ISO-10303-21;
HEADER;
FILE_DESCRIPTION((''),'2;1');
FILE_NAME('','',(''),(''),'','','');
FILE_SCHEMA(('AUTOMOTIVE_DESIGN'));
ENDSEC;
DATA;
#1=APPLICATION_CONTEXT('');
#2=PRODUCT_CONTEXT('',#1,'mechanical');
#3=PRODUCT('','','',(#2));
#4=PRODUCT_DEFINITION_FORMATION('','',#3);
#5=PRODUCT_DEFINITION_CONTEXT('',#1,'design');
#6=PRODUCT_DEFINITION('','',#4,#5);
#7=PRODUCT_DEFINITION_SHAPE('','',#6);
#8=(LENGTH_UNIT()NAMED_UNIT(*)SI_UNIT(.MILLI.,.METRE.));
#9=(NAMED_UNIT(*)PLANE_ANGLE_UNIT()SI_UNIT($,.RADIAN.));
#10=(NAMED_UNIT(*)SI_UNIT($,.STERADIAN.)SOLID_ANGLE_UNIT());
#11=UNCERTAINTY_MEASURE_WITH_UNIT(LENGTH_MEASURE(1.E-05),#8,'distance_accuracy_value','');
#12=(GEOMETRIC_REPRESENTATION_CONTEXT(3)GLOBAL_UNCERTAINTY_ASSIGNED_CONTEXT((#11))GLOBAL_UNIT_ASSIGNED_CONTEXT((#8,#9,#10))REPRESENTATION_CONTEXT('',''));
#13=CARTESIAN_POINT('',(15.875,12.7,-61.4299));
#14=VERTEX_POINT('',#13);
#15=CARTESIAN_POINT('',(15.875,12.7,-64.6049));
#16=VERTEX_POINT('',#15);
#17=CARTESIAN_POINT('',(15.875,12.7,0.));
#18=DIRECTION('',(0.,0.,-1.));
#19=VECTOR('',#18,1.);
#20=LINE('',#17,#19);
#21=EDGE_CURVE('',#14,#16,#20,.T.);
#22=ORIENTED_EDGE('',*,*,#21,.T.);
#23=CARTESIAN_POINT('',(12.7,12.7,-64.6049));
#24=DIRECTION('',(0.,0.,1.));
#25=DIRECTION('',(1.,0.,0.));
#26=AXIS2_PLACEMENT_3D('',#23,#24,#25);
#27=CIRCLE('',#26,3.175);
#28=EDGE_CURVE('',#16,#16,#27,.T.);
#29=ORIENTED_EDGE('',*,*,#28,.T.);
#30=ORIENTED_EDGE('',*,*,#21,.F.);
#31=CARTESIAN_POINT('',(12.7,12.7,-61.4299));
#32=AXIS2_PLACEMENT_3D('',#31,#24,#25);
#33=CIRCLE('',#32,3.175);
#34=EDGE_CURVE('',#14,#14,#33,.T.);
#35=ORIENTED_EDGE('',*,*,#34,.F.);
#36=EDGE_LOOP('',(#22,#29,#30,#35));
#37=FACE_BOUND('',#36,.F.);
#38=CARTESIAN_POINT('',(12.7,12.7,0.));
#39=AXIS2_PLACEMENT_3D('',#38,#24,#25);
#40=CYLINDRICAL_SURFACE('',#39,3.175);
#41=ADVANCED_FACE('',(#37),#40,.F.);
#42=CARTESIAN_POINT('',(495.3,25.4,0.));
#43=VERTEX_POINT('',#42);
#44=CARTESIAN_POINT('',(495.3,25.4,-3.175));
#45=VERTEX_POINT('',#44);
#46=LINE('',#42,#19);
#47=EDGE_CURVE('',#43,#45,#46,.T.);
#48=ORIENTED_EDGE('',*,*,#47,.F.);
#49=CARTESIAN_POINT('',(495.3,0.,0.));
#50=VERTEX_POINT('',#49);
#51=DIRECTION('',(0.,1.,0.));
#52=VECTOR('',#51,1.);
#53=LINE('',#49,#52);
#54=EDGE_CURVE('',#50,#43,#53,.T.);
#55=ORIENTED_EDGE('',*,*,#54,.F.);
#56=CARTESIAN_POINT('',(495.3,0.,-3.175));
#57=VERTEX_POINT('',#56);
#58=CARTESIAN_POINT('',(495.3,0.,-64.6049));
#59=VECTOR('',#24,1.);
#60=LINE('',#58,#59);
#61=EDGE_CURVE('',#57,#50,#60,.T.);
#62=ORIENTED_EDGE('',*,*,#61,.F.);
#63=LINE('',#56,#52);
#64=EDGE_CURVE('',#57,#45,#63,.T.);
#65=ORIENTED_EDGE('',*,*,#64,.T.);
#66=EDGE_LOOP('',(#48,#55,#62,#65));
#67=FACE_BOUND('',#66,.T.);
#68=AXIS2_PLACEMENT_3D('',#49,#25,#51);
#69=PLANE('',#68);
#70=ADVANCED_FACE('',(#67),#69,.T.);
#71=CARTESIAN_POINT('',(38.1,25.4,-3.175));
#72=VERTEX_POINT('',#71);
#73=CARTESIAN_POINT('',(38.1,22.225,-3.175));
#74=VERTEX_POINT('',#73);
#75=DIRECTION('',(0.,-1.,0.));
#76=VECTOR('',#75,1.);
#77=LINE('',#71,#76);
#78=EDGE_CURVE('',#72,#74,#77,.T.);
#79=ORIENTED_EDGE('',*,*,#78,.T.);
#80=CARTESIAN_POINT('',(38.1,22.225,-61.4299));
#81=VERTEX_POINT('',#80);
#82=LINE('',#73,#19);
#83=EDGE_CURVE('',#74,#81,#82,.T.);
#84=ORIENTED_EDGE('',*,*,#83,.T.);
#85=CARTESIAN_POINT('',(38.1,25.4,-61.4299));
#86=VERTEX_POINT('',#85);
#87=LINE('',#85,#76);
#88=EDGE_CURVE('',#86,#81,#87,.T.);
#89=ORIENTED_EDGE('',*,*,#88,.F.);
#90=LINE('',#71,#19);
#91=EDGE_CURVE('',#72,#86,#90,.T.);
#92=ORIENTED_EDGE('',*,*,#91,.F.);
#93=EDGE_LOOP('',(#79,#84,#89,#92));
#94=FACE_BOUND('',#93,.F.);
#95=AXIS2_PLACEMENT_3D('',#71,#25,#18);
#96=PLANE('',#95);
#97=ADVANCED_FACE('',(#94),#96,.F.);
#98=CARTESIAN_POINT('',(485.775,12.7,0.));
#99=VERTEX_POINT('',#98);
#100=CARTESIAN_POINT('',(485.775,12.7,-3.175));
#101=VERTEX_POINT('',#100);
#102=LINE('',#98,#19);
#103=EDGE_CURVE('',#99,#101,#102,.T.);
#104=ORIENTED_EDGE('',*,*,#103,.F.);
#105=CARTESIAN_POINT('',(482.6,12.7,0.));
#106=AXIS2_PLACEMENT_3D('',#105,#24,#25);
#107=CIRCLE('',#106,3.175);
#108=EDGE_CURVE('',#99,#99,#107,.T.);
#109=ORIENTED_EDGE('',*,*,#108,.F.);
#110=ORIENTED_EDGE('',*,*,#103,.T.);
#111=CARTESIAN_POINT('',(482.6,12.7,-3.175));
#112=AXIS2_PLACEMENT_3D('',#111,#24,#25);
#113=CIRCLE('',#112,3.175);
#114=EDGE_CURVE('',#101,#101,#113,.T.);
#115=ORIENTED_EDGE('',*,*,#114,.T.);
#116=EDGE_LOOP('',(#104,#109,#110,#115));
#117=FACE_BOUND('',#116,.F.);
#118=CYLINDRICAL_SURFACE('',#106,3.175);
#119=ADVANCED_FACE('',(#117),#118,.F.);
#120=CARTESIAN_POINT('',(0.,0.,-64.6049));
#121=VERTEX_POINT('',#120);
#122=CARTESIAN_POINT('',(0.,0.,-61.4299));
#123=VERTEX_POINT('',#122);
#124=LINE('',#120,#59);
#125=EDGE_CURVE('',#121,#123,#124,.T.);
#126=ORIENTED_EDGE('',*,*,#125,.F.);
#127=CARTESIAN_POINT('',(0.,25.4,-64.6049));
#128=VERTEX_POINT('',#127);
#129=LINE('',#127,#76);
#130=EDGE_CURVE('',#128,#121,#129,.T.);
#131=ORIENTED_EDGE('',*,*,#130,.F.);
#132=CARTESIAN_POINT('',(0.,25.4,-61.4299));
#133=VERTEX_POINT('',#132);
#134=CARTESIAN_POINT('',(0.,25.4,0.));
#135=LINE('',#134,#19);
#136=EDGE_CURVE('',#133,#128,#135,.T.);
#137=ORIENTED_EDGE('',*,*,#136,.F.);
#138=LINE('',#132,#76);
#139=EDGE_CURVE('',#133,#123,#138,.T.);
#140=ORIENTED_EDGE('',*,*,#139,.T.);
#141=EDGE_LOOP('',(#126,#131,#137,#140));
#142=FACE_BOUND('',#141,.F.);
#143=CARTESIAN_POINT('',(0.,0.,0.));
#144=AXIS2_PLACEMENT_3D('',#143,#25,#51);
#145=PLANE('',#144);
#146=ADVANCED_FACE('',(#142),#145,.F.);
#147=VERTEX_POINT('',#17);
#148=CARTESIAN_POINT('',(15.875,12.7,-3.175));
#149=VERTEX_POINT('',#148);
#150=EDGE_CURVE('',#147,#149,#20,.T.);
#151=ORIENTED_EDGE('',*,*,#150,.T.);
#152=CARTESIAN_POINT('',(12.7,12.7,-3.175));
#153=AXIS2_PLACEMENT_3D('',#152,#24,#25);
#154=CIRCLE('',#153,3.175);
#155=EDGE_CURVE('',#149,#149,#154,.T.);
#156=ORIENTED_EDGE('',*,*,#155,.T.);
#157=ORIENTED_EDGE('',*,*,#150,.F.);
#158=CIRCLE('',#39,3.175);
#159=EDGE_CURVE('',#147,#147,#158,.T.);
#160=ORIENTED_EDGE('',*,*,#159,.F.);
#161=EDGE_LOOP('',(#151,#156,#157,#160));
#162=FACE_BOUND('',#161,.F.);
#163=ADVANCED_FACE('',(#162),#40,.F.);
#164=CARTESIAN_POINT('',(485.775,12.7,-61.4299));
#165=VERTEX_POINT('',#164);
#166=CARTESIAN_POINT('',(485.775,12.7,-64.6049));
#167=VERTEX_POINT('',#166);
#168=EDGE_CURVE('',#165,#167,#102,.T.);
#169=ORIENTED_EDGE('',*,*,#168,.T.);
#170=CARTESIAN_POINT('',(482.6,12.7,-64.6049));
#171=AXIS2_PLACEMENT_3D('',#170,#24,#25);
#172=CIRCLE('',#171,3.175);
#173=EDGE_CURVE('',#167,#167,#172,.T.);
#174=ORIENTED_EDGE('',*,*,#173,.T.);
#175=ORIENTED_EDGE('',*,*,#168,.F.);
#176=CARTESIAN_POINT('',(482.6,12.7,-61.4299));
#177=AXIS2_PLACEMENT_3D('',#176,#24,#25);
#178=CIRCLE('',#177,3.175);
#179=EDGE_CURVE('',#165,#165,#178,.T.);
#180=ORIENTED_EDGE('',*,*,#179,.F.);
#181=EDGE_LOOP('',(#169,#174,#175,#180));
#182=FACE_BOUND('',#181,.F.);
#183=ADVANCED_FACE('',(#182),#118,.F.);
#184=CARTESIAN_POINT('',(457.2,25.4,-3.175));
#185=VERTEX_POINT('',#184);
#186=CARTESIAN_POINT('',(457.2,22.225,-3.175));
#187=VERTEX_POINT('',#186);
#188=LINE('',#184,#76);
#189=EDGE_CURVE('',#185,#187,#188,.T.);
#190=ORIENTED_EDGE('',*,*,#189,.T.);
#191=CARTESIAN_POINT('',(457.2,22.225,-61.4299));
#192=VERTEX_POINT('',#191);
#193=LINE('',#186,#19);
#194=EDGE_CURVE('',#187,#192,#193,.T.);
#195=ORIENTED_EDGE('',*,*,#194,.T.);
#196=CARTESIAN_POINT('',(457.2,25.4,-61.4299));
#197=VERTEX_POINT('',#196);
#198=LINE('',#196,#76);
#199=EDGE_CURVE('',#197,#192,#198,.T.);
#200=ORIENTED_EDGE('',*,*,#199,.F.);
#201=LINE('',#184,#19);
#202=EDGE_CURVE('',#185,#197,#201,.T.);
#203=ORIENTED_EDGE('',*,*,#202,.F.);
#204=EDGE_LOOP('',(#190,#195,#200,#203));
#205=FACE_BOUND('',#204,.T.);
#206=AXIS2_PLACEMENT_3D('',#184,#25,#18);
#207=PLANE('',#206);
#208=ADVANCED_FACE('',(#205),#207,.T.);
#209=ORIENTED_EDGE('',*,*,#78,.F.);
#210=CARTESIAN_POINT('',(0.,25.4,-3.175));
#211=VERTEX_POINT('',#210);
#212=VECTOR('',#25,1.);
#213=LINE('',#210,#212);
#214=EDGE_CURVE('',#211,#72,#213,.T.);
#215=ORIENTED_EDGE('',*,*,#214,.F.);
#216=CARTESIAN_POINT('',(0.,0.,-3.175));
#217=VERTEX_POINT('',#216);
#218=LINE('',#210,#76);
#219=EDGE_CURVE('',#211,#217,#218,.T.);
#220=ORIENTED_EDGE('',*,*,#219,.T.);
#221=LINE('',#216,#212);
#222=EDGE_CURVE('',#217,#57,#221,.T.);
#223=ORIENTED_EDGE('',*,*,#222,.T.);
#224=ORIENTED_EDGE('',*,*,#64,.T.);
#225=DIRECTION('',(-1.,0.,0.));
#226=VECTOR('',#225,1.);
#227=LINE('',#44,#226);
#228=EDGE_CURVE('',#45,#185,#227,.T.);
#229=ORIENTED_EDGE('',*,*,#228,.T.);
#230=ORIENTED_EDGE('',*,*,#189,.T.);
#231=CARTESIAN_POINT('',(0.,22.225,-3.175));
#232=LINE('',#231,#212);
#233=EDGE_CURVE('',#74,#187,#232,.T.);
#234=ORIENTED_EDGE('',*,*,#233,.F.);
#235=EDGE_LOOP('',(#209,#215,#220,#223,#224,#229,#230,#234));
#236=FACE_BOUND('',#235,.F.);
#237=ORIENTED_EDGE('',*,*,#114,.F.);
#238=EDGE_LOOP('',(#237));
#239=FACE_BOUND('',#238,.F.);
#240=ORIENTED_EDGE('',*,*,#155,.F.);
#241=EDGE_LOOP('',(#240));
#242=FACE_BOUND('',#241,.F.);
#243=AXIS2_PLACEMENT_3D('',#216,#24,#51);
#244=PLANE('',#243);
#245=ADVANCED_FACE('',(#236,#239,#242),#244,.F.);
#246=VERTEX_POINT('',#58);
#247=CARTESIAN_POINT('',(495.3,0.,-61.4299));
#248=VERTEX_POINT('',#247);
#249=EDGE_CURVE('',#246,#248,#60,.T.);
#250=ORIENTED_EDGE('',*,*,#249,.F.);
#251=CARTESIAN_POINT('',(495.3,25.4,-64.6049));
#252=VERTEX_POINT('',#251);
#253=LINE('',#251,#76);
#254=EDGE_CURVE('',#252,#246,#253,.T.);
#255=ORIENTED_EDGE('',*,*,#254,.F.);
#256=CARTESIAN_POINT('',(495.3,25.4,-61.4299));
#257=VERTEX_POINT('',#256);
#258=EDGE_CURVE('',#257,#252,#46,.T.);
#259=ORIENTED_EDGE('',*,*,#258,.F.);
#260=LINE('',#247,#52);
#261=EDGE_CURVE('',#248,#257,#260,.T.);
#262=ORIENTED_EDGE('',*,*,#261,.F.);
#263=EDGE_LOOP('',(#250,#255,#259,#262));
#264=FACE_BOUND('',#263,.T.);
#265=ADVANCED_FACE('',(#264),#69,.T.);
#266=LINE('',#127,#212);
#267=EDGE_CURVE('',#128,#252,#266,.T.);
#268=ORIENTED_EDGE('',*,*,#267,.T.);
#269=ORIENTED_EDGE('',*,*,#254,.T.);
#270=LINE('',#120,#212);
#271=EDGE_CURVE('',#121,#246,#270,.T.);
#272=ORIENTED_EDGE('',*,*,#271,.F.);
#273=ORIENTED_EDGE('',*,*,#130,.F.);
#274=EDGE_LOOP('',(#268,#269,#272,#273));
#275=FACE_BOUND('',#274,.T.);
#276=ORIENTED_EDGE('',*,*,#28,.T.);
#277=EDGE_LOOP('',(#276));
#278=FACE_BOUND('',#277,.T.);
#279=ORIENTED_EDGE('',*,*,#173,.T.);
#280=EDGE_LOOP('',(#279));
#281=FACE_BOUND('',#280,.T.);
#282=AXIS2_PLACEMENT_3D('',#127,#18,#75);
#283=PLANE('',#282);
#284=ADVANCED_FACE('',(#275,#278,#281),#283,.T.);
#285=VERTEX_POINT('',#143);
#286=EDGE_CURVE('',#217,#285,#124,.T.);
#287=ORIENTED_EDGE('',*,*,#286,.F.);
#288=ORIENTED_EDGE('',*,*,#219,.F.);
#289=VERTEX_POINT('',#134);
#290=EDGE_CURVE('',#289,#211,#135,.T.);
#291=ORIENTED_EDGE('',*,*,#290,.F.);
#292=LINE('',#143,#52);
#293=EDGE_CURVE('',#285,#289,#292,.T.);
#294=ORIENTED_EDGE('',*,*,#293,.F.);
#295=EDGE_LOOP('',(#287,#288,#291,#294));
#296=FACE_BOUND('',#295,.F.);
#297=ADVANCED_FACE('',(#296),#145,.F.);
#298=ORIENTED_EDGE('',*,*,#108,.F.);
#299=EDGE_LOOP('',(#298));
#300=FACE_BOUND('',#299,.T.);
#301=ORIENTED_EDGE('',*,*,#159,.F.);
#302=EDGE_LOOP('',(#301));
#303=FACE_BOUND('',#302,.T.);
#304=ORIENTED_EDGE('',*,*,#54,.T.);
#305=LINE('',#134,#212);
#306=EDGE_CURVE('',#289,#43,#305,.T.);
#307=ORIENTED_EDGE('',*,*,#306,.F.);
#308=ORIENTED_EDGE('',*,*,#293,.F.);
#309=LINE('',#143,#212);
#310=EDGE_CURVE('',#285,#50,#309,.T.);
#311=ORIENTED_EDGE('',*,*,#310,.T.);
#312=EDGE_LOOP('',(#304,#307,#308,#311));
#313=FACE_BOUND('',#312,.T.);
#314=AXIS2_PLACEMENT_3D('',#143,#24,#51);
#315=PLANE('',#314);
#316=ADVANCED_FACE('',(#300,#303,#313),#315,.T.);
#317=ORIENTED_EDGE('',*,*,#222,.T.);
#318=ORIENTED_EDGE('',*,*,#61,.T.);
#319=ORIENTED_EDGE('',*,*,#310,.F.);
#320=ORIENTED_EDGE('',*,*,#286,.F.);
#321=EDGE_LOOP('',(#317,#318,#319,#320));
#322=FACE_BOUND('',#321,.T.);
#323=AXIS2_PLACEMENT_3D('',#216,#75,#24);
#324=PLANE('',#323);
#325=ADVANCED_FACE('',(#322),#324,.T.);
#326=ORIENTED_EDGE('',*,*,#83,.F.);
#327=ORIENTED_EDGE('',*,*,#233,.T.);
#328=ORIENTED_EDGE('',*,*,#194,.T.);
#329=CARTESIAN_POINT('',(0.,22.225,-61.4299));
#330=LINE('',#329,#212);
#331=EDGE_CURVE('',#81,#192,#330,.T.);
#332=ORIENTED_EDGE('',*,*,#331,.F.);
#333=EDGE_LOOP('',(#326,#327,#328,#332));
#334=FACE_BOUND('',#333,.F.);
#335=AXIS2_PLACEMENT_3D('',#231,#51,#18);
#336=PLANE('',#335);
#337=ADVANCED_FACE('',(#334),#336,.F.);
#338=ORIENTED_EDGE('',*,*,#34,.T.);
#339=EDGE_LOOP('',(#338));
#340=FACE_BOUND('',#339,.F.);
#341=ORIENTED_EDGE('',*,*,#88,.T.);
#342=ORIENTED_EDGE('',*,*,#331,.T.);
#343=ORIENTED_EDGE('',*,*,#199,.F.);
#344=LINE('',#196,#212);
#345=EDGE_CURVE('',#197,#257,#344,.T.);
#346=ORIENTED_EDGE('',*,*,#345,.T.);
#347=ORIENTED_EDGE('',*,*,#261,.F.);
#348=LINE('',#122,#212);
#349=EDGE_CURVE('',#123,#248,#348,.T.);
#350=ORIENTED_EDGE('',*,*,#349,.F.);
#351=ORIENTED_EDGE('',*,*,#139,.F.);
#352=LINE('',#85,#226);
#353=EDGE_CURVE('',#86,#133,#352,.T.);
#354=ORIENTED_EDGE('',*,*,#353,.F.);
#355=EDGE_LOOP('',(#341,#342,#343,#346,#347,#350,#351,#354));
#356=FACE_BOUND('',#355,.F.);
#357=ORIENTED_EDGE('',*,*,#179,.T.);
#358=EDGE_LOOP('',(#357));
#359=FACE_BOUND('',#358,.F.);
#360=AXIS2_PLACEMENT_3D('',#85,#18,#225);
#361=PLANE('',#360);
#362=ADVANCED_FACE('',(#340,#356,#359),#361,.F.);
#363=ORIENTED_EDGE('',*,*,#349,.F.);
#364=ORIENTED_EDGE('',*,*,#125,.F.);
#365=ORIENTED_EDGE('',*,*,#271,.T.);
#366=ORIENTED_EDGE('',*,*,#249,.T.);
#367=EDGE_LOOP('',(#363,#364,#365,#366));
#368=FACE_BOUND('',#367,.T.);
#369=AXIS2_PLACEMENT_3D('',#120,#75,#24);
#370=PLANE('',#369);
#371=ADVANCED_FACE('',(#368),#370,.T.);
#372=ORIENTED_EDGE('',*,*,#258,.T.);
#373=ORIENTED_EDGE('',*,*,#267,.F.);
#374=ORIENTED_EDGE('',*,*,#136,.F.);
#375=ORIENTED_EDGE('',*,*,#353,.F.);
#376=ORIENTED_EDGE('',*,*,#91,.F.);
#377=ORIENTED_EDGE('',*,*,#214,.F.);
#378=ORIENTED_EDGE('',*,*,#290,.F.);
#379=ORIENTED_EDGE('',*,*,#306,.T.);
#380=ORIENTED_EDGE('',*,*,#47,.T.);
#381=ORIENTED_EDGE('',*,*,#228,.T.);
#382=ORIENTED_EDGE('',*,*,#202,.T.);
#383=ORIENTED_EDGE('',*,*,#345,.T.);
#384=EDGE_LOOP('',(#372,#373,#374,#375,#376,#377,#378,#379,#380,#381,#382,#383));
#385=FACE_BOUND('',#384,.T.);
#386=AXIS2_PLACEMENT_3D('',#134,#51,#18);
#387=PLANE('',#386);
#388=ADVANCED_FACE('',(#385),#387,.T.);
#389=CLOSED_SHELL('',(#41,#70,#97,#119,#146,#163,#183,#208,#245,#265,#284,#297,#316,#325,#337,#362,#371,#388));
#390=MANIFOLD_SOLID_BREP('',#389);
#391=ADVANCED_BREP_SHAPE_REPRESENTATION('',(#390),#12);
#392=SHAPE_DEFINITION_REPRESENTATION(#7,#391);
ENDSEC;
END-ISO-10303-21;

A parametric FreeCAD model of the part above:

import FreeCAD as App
import Part
import Sketcher

V = App.Vector
Q = App.Units.Quantity


def add_polygon(sketch, points):
    """Adds a closed chain of lines whose ends are joined by coincident constraints."""
    first, n = sketch.GeometryCount, len(points)
    for a, b in zip(points, points[1:] + points[:1]):
        sketch.addGeometry(Part.LineSegment(App.Vector(*a, 0), App.Vector(*b, 0)), False)
    for i in range(n):
        sketch.addConstraint(Sketcher.Constraint("Coincident", first + i, 2, first + (i + 1) % n, 1))

doc = App.newDocument("Part")
body = doc.addObject("PartDesign::Body", "Body")

sketch1 = body.newObject("Sketcher::SketchObject", "Sketch")
sketch1.AttachmentSupport = (doc.getObject("YZ_Plane"), [""])
sketch1.MapMode = "FlatFace"
add_polygon(sketch1, [(25.4, 0), (0, 0), (0, -3.175), (22.225, -3.175), (22.225, -61.4299), (0, -61.4299), (0, -64.6049), (25.4, -64.6049)])
sketch1.addConstraint([
    Sketcher.Constraint("Horizontal", 0),
    Sketcher.Constraint("Vertical", 1),
    Sketcher.Constraint("Horizontal", 2),
    Sketcher.Constraint("Vertical", 3),
    Sketcher.Constraint("Horizontal", 4),
    Sketcher.Constraint("Vertical", 5),
    Sketcher.Constraint("Horizontal", 6),
    Sketcher.Constraint("Vertical", 7),
    Sketcher.Constraint("Coincident", 0, 2, -1, 1),
    Sketcher.Constraint("PointOnObject", 4, 2, -2),
    Sketcher.Constraint("Equal", 1, 5),
    Sketcher.Constraint("DistanceX", 0, 2, 0, 1, Q("1 in")),
    Sketcher.Constraint("DistanceX", 2, 1, 2, 2, Q("0.875 in")),
    Sketcher.Constraint("DistanceY", 1, 2, 1, 1, Q("0.125 in")),
    Sketcher.Constraint("DistanceY", 3, 2, 3, 1, Q("2.2935 in")),
])
pad1 = body.newObject("PartDesign::Pad", "Pad")
pad1.Profile = sketch1
pad1.Length = Q("19.5 in")

sketch2 = body.newObject("Sketcher::SketchObject", "Sketch001")
sketch2.AttachmentSupport = (doc.getObject("XZ_Plane"), [""])
sketch2.MapMode = "FlatFace"
sketch2.AttachmentOffset = App.Placement(V(0, 0, -1 * 25.4), App.Rotation())
add_polygon(sketch2, [(38.1, -61.4299), (0, -61.4299), (0, -3.175), (38.1, -3.175)])
add_polygon(sketch2, [(495.3, -3.175), (495.3, -61.4299), (457.2, -61.4299), (457.2, -3.175)])
sketch2.addConstraint([
    Sketcher.Constraint("Horizontal", 0),
    Sketcher.Constraint("Vertical", 1),
    Sketcher.Constraint("Horizontal", 2),
    Sketcher.Constraint("Vertical", 3),
    Sketcher.Constraint("Vertical", 4),
    Sketcher.Constraint("Horizontal", 5),
    Sketcher.Constraint("Vertical", 6),
    Sketcher.Constraint("Horizontal", 7),
    Sketcher.Constraint("PointOnObject", 0, 2, -2),
    Sketcher.Constraint("Horizontal", 3, 2, 4, 2),
    Sketcher.Constraint("Horizontal", 2, 2, 6, 2),
    Sketcher.Constraint("Equal", 2, 5),
    Sketcher.Constraint("DistanceX", 0, 2, 0, 1, Q("1.5 in")),
    Sketcher.Constraint("DistanceY", 1, 1, 1, 2, Q("2.2935 in")),
    Sketcher.Constraint("DistanceY", 1, 2, -1, 1, Q("0.125 in")),
    Sketcher.Constraint("DistanceX", -1, 1, 5, 2, Q("18 in")),
])
pocket1 = body.newObject("PartDesign::Pocket", "Pocket")
pocket1.Profile = sketch2
pocket1.Length = Q("0.125 in")
pocket1.Reversed = True

sketch3 = body.newObject("Sketcher::SketchObject", "Sketch002")
sketch3.AttachmentSupport = (doc.getObject("XY_Plane"), [""])
sketch3.MapMode = "FlatFace"
sketch3.addGeometry([
    Part.Circle(V(12.7, 12.7, 0), V(0, 0, 1), 3.175),
    Part.Circle(V(482.6, 12.7, 0), V(0, 0, 1), 3.175),
], False)
sketch3.addConstraint([
    Sketcher.Constraint("Equal", 0, 1),
    Sketcher.Constraint("Horizontal", 0, 3, 1, 3),
    Sketcher.Constraint("Diameter", 0, Q("0.25 in")),
    Sketcher.Constraint("DistanceX", -1, 1, 0, 3, Q("0.5 in")),
    Sketcher.Constraint("DistanceY", -1, 1, 0, 3, Q("0.5 in")),
    Sketcher.Constraint("DistanceX", -1, 1, 1, 3, Q("19 in")),
])
pocket2 = body.newObject("PartDesign::Pocket", "Pocket001")
pocket2.Profile = sketch3
pocket2.Length = Q("5 in")

doc.recompute()
